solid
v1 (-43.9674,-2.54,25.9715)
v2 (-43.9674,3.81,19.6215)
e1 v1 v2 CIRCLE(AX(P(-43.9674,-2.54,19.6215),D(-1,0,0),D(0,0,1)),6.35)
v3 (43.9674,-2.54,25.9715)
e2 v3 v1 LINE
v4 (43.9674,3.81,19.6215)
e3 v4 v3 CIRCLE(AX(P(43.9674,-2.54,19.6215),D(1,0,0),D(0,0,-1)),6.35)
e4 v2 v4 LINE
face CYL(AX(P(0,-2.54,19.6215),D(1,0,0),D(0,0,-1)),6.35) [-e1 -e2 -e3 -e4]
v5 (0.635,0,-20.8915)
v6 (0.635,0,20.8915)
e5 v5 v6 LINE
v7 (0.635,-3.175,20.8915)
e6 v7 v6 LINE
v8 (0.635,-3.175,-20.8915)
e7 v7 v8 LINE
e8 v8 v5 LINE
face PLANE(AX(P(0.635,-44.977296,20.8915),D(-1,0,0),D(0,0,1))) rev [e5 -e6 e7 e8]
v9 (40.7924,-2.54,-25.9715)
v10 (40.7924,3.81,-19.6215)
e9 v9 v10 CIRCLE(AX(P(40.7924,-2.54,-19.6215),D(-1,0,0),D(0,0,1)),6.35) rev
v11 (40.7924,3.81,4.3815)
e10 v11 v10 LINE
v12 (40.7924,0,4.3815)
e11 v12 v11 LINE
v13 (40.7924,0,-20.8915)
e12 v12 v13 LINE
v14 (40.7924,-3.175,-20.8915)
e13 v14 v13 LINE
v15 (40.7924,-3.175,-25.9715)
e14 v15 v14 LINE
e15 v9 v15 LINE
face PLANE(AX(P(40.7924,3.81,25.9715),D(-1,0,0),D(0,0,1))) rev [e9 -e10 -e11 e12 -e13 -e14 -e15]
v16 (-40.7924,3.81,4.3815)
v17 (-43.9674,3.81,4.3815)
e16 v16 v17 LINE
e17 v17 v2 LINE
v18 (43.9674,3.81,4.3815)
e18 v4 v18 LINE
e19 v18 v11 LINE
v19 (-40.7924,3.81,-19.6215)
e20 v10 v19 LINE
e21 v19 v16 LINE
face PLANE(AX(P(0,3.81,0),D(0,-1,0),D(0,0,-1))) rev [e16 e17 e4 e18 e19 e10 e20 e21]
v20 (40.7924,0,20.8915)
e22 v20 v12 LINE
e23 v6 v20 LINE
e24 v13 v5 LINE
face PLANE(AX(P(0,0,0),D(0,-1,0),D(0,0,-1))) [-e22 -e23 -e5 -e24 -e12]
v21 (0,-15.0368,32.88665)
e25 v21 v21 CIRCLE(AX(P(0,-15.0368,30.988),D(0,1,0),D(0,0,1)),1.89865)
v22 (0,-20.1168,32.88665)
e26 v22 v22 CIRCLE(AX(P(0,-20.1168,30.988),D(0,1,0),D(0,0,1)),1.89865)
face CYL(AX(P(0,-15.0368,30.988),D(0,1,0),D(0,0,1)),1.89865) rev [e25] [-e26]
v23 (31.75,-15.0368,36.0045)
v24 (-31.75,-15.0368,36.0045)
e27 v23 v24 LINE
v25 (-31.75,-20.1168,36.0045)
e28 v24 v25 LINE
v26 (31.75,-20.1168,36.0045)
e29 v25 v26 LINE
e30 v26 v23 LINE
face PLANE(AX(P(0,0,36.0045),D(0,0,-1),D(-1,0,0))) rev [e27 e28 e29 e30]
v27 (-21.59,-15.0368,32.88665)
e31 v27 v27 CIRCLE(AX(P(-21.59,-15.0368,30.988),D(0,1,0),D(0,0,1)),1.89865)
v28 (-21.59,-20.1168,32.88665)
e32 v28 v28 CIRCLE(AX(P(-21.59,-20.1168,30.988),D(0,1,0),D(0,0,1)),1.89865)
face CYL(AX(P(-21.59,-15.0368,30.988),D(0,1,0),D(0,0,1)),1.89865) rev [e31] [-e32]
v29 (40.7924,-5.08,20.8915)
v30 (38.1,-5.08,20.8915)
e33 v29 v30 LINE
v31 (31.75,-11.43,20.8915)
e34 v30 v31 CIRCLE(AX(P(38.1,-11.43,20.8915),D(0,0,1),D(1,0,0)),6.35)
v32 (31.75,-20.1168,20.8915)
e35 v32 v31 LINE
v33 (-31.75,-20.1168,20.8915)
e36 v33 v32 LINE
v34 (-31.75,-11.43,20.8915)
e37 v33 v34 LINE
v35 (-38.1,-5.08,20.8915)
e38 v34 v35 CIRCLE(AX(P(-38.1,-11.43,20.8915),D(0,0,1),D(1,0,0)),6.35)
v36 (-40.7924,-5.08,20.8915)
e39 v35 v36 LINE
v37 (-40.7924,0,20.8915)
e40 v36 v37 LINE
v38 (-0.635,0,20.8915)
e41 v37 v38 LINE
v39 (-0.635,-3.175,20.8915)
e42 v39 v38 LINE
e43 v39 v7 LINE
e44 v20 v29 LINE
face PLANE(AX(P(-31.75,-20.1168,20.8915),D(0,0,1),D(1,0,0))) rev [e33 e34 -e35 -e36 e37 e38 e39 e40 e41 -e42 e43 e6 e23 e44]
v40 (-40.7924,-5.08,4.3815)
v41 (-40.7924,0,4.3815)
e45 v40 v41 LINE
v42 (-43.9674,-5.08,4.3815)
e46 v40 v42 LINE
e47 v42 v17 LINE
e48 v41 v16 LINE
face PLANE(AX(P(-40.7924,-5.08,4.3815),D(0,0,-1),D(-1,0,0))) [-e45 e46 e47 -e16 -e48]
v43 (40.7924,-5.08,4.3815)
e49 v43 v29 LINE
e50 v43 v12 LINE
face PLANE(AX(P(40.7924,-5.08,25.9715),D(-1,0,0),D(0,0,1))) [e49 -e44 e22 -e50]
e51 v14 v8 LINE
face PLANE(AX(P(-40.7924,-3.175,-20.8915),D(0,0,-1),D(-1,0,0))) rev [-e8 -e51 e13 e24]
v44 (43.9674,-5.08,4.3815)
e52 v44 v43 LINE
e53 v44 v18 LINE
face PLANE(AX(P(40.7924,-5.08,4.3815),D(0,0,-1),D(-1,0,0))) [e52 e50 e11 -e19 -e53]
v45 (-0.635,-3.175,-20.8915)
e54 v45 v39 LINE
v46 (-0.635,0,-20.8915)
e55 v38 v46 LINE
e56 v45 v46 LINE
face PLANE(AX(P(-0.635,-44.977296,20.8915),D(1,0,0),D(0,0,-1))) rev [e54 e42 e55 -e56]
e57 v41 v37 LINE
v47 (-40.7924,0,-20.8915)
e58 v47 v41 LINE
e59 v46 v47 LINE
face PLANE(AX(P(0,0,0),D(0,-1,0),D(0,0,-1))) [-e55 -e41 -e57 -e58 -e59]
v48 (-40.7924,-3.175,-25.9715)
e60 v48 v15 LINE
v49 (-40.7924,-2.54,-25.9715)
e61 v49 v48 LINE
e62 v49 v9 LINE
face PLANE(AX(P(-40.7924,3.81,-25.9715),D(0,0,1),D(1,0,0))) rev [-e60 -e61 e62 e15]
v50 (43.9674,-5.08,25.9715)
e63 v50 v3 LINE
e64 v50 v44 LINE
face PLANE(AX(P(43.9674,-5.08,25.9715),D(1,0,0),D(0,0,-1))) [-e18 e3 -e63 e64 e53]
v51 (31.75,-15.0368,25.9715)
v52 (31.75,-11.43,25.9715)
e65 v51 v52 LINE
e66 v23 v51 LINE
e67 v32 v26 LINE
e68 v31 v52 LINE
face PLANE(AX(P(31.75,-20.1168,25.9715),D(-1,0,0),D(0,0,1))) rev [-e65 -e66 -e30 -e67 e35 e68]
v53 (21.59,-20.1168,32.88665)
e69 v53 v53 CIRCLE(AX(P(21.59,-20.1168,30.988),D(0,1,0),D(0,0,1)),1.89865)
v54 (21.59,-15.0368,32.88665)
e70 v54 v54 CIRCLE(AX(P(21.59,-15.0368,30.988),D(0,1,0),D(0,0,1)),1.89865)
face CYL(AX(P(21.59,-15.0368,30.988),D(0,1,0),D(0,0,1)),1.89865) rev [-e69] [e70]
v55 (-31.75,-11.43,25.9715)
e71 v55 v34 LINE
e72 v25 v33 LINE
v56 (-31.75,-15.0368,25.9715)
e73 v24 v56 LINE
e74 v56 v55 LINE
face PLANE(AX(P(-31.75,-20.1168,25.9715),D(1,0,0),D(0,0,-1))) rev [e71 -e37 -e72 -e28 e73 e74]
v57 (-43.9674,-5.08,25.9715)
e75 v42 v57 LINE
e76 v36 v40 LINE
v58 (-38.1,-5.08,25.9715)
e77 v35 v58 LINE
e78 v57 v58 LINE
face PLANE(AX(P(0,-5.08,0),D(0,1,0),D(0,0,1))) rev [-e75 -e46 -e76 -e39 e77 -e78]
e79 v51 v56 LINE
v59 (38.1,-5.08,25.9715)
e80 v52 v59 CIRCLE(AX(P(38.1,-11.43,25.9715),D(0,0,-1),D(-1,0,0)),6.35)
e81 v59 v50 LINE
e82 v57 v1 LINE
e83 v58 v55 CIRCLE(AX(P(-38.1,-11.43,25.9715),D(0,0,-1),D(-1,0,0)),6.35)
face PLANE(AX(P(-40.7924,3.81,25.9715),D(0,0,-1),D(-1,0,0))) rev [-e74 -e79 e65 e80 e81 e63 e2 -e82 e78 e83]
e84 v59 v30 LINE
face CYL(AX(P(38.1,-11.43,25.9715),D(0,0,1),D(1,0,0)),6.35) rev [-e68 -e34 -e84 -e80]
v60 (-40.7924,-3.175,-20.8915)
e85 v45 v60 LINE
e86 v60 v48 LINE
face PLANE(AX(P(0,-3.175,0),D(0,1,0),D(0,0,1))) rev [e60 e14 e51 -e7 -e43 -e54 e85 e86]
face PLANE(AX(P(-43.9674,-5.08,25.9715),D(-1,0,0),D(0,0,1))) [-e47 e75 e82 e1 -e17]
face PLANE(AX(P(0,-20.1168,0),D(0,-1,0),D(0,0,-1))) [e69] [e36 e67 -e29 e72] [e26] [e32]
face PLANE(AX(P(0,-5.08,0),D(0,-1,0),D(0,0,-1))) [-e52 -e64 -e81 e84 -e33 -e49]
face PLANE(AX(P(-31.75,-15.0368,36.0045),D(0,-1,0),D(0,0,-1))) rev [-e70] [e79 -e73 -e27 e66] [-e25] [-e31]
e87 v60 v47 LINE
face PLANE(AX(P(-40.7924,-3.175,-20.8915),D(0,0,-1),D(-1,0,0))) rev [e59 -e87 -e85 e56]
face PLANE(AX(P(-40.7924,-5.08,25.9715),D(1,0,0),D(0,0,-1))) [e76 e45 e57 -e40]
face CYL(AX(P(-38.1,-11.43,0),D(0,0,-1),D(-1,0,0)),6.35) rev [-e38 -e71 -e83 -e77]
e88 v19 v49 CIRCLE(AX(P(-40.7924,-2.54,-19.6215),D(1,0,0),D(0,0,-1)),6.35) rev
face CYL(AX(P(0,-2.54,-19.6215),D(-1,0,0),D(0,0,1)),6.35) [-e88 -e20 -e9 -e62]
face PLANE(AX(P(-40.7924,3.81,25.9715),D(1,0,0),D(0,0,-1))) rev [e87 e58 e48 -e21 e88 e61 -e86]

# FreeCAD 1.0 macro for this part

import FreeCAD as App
import Part
import Sketcher
Q = App.Units.Quantity


def edges_at(feature, points):
    """Names of the edges that pass closest to the given points."""
    edges = feature.Shape.Edges
    near = lambda p: min(range(len(edges)), key=lambda i: edges[i].distToShape(Part.Vertex(*p))[0])
    return sorted({f"Edge{near(p) + 1}" for p in points})


def add_polygon(sketch, points):
    """Adds a closed chain of lines whose ends are joined by coincident constraints."""
    first, n = sketch.GeometryCount, len(points)
    for a, b in zip(points, points[1:] + points[:1]):
        sketch.addGeometry(Part.LineSegment(App.Vector(*a, 0), App.Vector(*b, 0)), False)
    for i in range(n):
        sketch.addConstraint(Sketcher.Constraint("Coincident", first + i, 2, first + (i + 1) % n, 1))

doc = App.newDocument("Part")
body = doc.addObject("PartDesign::Body", "Body")

# Sketch on XZ plane
sketch1 = body.newObject("Sketcher::SketchObject", "Sketch")
sketch1.AttachmentSupport = (doc.getObject("XZ_Plane"), [""])
sketch1.MapMode = "FlatFace"
add_polygon(sketch1, [(-40.7924, -25.9715), (-40.7924, 25.9715), (40.7924, 25.9715), (40.7924, -25.9715)])  # lines 0-3
sketch1.addConstraint([
    Sketcher.Constraint("Vertical", 0),
    Sketcher.Constraint("Horizontal", 1),
    Sketcher.Constraint("Vertical", 2),
    Sketcher.Constraint("Horizontal", 3),
    Sketcher.Constraint("Symmetric", 0, 2, 2, 2, -1, 1),
    Sketcher.Constraint("DistanceX", 1, 1, 1, 2, Q("3.212 in")),
    Sketcher.Constraint("DistanceY", 0, 1, 0, 2, Q("2.045 in")),
])
pad1 = body.newObject("PartDesign::Pad", "Pad")
pad1.Profile = sketch1
pad1.Length = Q("0.15 in")
pad1.Reversed = True

# Sketch on XZ plane
sketch2 = body.newObject("Sketcher::SketchObject", "Sketch001")
sketch2.AttachmentSupport = (doc.getObject("XZ_Plane"), [""])
sketch2.MapMode = "FlatFace"
add_polygon(sketch2, [(-31.75, 25.9715), (-31.75, 20.8915), (31.75, 20.8915), (31.75, 25.9715)])  # lines 0-3
sketch2.addConstraint([
    Sketcher.Constraint("Vertical", 0),
    Sketcher.Constraint("Horizontal", 1),
    Sketcher.Constraint("Vertical", 2),
    Sketcher.Constraint("Horizontal", 3),
    Sketcher.Constraint("DistanceX", 1, 1, 1, 2, Q("2.5 in")),
    Sketcher.Constraint("DistanceY", 0, 2, 0, 1, Q("0.2 in")),
    Sketcher.Constraint("DistanceX", 0, 2, -1, 1, Q("1.25 in")),
    Sketcher.Constraint("DistanceY", -1, 1, 0, 2, Q("0.8225 in")),
])
pad2 = body.newObject("PartDesign::Pad", "Pad001")
pad2.Profile = sketch2
pad2.Length = Q("0.792 in")

# Sketch on XZ plane
sketch3 = body.newObject("Sketcher::SketchObject", "Sketch002")
sketch3.AttachmentSupport = (doc.getObject("XZ_Plane"), [""])
sketch3.MapMode = "FlatFace"
add_polygon(sketch3, [(-40.7924, -20.8915), (-40.7924, -25.9715), (40.7924, -25.9715), (40.7924, -20.8915)])  # lines 0-3
sketch3.addConstraint([
    Sketcher.Constraint("Vertical", 0),
    Sketcher.Constraint("Horizontal", 1),
    Sketcher.Constraint("Vertical", 2),
    Sketcher.Constraint("Horizontal", 3),
    Sketcher.Constraint("DistanceY", 0, 2, 0, 1, Q("0.2 in")),
    Sketcher.Constraint("DistanceX", 1, 1, 1, 2, Q("3.212 in")),
    Sketcher.Constraint("DistanceX", 0, 2, -1, 1, Q("1.606 in")),
    Sketcher.Constraint("DistanceY", 0, 2, -1, 1, Q("1.0225 in")),
])
pad3 = body.newObject("PartDesign::Pad", "Pad002")
pad3.Profile = sketch3
pad3.Length = Q("0.125 in")

# Sketch on XY plane
sketch4 = body.newObject("Sketcher::SketchObject", "Sketch003")
sketch4.AttachmentSupport = (doc.getObject("XY_Plane"), [""])
sketch4.MapMode = "FlatFace"
sketch4.AttachmentOffset = App.Placement(App.Vector(0, 0, 1.0225 * 25.4), App.Rotation())
add_polygon(sketch4, [(-31.75, -15.0368), (-31.75, -20.1168), (31.75, -20.1168), (31.75, -15.0368)])  # lines 0-3
sketch4.addConstraint([
    Sketcher.Constraint("Vertical", 0),
    Sketcher.Constraint("Horizontal", 1),
    Sketcher.Constraint("Vertical", 2),
    Sketcher.Constraint("Horizontal", 3),
    Sketcher.Constraint("DistanceX", 1, 1, 1, 2, Q("2.5 in")),
    Sketcher.Constraint("DistanceY", 0, 2, 0, 1, Q("0.2 in")),
    Sketcher.Constraint("DistanceX", 0, 2, -1, 1, Q("1.25 in")),
    Sketcher.Constraint("DistanceY", 0, 2, -1, 1, Q("0.792 in")),
])
pad4 = body.newObject("PartDesign::Pad", "Pad003")
pad4.Profile = sketch4
pad4.Length = Q("0.395 in")

# Sketch on XZ plane
sketch5 = body.newObject("Sketcher::SketchObject", "Sketch004")
sketch5.AttachmentSupport = (doc.getObject("XZ_Plane"), [""])
sketch5.MapMode = "FlatFace"
sketch5.AttachmentOffset = App.Placement(App.Vector(0, 0, -0.15 * 25.4), App.Rotation())
add_polygon(sketch5, [(-43.9674, 4.3815), (-43.9674, 25.9715), (-40.7924, 25.9715), (-40.7924, 4.3815)])  # lines 0-3
add_polygon(sketch5, [(40.7924, 4.3815), (40.7924, 25.9715), (43.9674, 25.9715), (43.9674, 4.3815)])  # lines 4-7
sketch5.addConstraint([
    Sketcher.Constraint("Vertical", 0),
    Sketcher.Constraint("Horizontal", 1),
    Sketcher.Constraint("Vertical", 2),
    Sketcher.Constraint("Horizontal", 3),
    Sketcher.Constraint("Vertical", 4),
    Sketcher.Constraint("Horizontal", 5),
    Sketcher.Constraint("Vertical", 6),
    Sketcher.Constraint("Horizontal", 7),
    Sketcher.Constraint("Symmetric", 1, 2, 4, 2, -2),
    Sketcher.Constraint("Symmetric", 3, 2, 6, 2, -2),
    Sketcher.Constraint("DistanceY", 0, 1, 0, 2, Q("0.85 in")),
    Sketcher.Constraint("DistanceX", 1, 1, 1, 2, Q("0.125 in")),
    Sketcher.Constraint("DistanceX", 0, 2, -1, 1, Q("1.731 in")),
    Sketcher.Constraint("DistanceY", -1, 1, 0, 2, Q("1.0225 in")),
])
pad5 = body.newObject("PartDesign::Pad", "Pad004")
pad5.Profile = sketch5
pad5.Length = Q("0.35 in")
doc.recompute()

fillet = body.newObject("PartDesign::Fillet", "Fillet")
fillet.Base = (pad5, edges_at(pad5, [(0, 3.81, -25.971)]))
fillet.Radius = Q("0.25 in")

# Sketch on XY plane
sketch6 = body.newObject("Sketcher::SketchObject", "Sketch005")
sketch6.AttachmentSupport = (doc.getObject("XY_Plane"), [""])
sketch6.MapMode = "FlatFace"
sketch6.AttachmentOffset = App.Placement(App.Vector(0, 0, 1.0225 * 25.4), App.Rotation())
add_polygon(sketch6, [(31.75, 0), (31.75, -5.08), (40.7924, -5.08), (40.7924, 0)])  # lines 0-3
add_polygon(sketch6, [(-40.7924, 0), (-40.7924, -5.08), (-31.75, -5.08), (-31.75, 0)])  # lines 4-7
sketch6.addConstraint([
    Sketcher.Constraint("Vertical", 0),
    Sketcher.Constraint("Horizontal", 1),
    Sketcher.Constraint("Vertical", 2),
    Sketcher.Constraint("Horizontal", 3),
    Sketcher.Constraint("Vertical", 4),
    Sketcher.Constraint("Horizontal", 5),
    Sketcher.Constraint("Vertical", 6),
    Sketcher.Constraint("Horizontal", 7),
    Sketcher.Constraint("Symmetric", 3, 2, 6, 2, -1, 1),
    Sketcher.Constraint("Symmetric", 1, 2, 4, 2, -2),
    Sketcher.Constraint("PointOnObject", 2, 2, -1),
    Sketcher.Constraint("DistanceY", 0, 2, 0, 1, Q("0.2 in")),
    Sketcher.Constraint("DistanceX", 5, 2, 0, 2, Q("2.5 in")),
    Sketcher.Constraint("DistanceX", 1, 1, 1, 2, Q("0.356 in")),
])
pad6 = body.newObject("PartDesign::Pad", "Pad005")
pad6.Profile = sketch6
pad6.Length = Q("0.2 in")
pad6.Reversed = True
doc.recompute()

fillet2 = body.newObject("PartDesign::Fillet", "Fillet001")
fillet2.Base = (pad6, edges_at(pad6, [(-31.75, -5.08, 23.431), (31.75, -5.08, 23.431)]))
fillet2.Radius = Q("0.25 in")
doc.recompute()

fillet3 = body.newObject("PartDesign::Fillet", "Fillet002")
fillet3.Base = (fillet2, edges_at(fillet2, [(0, 3.81, 25.971)]))
fillet3.Radius = Q("0.25 in")

# Sketch on XZ plane
sketch7 = body.newObject("Sketcher::SketchObject", "Sketch006")
sketch7.AttachmentSupport = (doc.getObject("XZ_Plane"), [""])
sketch7.MapMode = "FlatFace"
add_polygon(sketch7, [(-0.635, 20.8915), (-0.635, -20.8915), (0.635, -20.8915), (0.635, 20.8915)])  # lines 0-3
sketch7.addConstraint([
    Sketcher.Constraint("Vertical", 0),
    Sketcher.Constraint("Horizontal", 1),
    Sketcher.Constraint("Vertical", 2),
    Sketcher.Constraint("Horizontal", 3),
    Sketcher.Constraint("Symmetric", 0, 2, 2, 2, -1, 1),
    Sketcher.Constraint("DistanceX", 1, 1, 1, 2, Q("0.05 in")),
    Sketcher.Constraint("DistanceY", 0, 2, 0, 1, Q("1.645 in")),
])
pad7 = body.newObject("PartDesign::Pad", "Pad006")
pad7.Profile = sketch7
pad7.Length = Q("0.125 in")

# Sketch on XZ plane
sketch8 = body.newObject("Sketcher::SketchObject", "Sketch007")
sketch8.AttachmentSupport = (doc.getObject("XZ_Plane"), [""])
sketch8.MapMode = "FlatFace"
sketch8.AttachmentOffset = App.Placement(App.Vector(0, 0, 0.592 * 25.4), App.Rotation())
sketch8.addGeometry([
    Part.Circle(App.Vector(21.59, 30.988, 0), App.Vector(0, 0, 1), 1.89865),
    Part.Circle(App.Vector(-21.59, 30.988, 0), App.Vector(0, 0, 1), 1.89865),
    Part.Circle(App.Vector(0, 30.988, 0), App.Vector(0, 0, 1), 1.89865),
], False)
sketch8.addConstraint([
    Sketcher.Constraint("Equal", 0, 1),
    Sketcher.Constraint("Equal", 1, 2),
    Sketcher.Constraint("Symmetric", 0, 3, 1, 3, -2),
    Sketcher.Constraint("PointOnObject", 2, 3, -2),
    Sketcher.Constraint("Horizontal", 1, 3, 2, 3),
    Sketcher.Constraint("Diameter", 0, Q("0.1495 in")),
    Sketcher.Constraint("DistanceX", 1, 3, 0, 3, Q("1.7 in")),
    Sketcher.Constraint("DistanceY", -1, 1, 0, 3, Q("1.22 in")),
])
doc.recompute()
hole = body.newObject("PartDesign::Hole", "Hole")
hole.Profile = sketch8
hole.ThreadType = "None"
hole.Diameter = Q("0.1495 in")
hole.DepthType = "ThroughAll"
hole.Reversed = True

doc.recompute()
